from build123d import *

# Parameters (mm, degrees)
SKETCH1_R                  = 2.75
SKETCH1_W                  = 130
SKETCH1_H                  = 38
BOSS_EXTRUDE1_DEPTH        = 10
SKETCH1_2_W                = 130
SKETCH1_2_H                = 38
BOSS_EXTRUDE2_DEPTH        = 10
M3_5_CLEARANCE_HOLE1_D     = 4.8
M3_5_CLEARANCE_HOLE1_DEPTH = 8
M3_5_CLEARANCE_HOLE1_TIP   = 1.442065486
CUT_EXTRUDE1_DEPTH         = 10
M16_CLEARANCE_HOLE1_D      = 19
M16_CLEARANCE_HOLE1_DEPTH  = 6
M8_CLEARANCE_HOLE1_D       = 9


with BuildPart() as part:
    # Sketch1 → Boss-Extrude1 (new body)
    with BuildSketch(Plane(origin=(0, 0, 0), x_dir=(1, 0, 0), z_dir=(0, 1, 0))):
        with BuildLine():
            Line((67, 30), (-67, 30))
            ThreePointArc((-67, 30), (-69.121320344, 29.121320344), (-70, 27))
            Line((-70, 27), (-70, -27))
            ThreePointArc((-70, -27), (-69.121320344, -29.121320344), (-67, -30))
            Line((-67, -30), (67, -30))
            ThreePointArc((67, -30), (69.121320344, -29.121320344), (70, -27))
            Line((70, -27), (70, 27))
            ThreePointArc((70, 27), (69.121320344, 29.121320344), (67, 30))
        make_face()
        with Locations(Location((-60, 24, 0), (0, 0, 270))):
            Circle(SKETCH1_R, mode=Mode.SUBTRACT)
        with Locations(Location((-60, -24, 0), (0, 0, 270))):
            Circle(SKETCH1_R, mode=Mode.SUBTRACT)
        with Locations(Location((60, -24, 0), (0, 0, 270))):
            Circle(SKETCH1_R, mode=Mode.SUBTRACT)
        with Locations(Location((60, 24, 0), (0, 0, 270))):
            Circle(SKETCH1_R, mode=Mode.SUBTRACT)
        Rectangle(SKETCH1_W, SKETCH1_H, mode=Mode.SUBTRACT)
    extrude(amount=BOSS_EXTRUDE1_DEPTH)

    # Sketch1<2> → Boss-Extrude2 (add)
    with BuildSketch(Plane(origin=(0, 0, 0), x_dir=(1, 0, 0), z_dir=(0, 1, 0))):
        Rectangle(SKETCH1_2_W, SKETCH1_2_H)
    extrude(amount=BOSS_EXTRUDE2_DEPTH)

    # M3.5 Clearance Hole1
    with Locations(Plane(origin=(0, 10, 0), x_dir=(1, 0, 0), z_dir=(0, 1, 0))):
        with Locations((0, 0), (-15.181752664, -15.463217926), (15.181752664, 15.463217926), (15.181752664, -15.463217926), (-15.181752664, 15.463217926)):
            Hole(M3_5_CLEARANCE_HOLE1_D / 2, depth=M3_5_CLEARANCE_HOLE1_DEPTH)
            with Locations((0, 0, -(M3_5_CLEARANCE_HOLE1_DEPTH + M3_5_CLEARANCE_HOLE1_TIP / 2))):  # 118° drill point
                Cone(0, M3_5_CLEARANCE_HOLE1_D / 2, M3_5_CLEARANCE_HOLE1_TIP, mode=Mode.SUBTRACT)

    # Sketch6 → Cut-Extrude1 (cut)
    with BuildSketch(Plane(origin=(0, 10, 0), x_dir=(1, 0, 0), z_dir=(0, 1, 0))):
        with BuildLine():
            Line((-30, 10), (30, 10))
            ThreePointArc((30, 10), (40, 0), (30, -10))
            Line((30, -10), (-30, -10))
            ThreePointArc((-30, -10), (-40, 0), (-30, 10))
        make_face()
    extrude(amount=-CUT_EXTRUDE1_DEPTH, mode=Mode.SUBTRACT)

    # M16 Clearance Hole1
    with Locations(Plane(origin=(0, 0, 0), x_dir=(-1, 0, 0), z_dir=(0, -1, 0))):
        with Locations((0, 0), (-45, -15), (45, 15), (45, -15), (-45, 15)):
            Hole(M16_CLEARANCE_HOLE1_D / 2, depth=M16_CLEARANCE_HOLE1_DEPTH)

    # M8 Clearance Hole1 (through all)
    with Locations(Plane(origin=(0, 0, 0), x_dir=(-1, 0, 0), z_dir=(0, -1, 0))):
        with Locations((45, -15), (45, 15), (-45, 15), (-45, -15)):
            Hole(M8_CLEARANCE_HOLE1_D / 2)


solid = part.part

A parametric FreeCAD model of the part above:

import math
import FreeCAD as App
import Part
import Sketcher
from FreeCAD import Vector
Q = App.Units.Quantity

doc = App.newDocument("Part")
params = doc.addObject("Spreadsheet::Sheet", "Params")
for row, (alias, value) in enumerate([
    ("sketch1_radius", "3 mm"),
    ("sketch1_diameter", "5.5 mm"),
    ("sketch1_width", "134 mm"),
    ("sketch1_width2", "130 mm"),
    ("sketch1_height", "54 mm"),
    ("pad1_length", "10 mm"),
    ("sketch2_width", "130 mm"),
    ("sketch2_height", "38 mm"),
    ("pad2_length", "10 mm"),
    ("sketch3_diameter", "4.8 mm"),
    ("hole_diameter", "4.8 mm"),
    ("hole_depth", "8 mm"),
    ("sketch4_radius", "10 mm"),
    ("sketch4_width", "60 mm"),
    ("pocket1_length", "10 mm"),
    ("sketch5_diameter", "19 mm"),
    ("hole2_diameter", "19 mm"),
    ("hole2_depth", "6 mm"),
    ("sketch6_diameter", "9 mm"),
    ("hole3_diameter", "9 mm"),
], start=1):
    params.set(f"A{row}", alias)
    params.set(f"B{row}", "=" + value)
    params.setAlias(f"B{row}", alias)

body = doc.addObject("PartDesign::Body", "Body")

# Sketch on XZ plane
sketch1 = body.newObject("Sketcher::SketchObject", "Sketch")
sketch1.AttachmentSupport = (doc.getObject("XZ_Plane"), [""])
sketch1.MapMode = "FlatFace"
sketch1.addGeometry(Part.LineSegment(Vector(67, -30, 0), Vector(-67, -30, 0)), False)
sketch1.addGeometry(Part.ArcOfCircle(Part.Circle(Vector(-67, -27, 0), Vector(0, 0, 1), 3), math.radians(180), math.radians(270)), False)
sketch1.addGeometry(Part.LineSegment(Vector(-70, -27, 0), Vector(-70, 27, 0)), False)
sketch1.addGeometry(Part.ArcOfCircle(Part.Circle(Vector(-67, 27, 0), Vector(0, 0, 1), 3), math.radians(90), math.radians(180)), False)
sketch1.addGeometry(Part.LineSegment(Vector(-67, 30, 0), Vector(67, 30, 0)), False)
sketch1.addGeometry(Part.ArcOfCircle(Part.Circle(Vector(67, 27, 0), Vector(0, 0, 1), 3), math.radians(0), math.radians(90)), False)
sketch1.addGeometry(Part.LineSegment(Vector(70, 27, 0), Vector(70, -27, 0)), False)
sketch1.addGeometry(Part.ArcOfCircle(Part.Circle(Vector(67, -27, 0), Vector(0, 0, 1), 3), math.radians(-90), math.radians(0)), False)
sketch1.addGeometry(Part.Circle(Vector(-60, 24, 0), Vector(0, 0, 1), 2.75), False)
sketch1.addGeometry(Part.Circle(Vector(60, 24, 0), Vector(0, 0, 1), 2.75), False)
sketch1.addGeometry(Part.LineSegment(Vector(65, 19, 0), Vector(-65, 19, 0)), False)
sketch1.addGeometry(Part.LineSegment(Vector(-65, 19, 0), Vector(-65, -19, 0)), False)
sketch1.addGeometry(Part.LineSegment(Vector(-65, -19, 0), Vector(65, -19, 0)), False)
sketch1.addGeometry(Part.LineSegment(Vector(65, -19, 0), Vector(65, 19, 0)), False)
sketch1.addGeometry(Part.Circle(Vector(-60, -24, 0), Vector(0, 0, 1), 2.75), False)
sketch1.addGeometry(Part.Circle(Vector(60, -24, 0), Vector(0, 0, 1), 2.75), False)
sketch1.addConstraint(Sketcher.Constraint("Tangent", 0, 2, 1, 2))
sketch1.addConstraint(Sketcher.Constraint("Tangent", 1, 1, 2, 1))
sketch1.addConstraint(Sketcher.Constraint("Tangent", 2, 2, 3, 2))
sketch1.addConstraint(Sketcher.Constraint("Tangent", 3, 1, 4, 1))
sketch1.addConstraint(Sketcher.Constraint("Tangent", 4, 2, 5, 2))
sketch1.addConstraint(Sketcher.Constraint("Tangent", 5, 1, 6, 1))
sketch1.addConstraint(Sketcher.Constraint("Tangent", 6, 2, 7, 2))
sketch1.addConstraint(Sketcher.Constraint("Tangent", 7, 1, 0, 1))
sketch1.addConstraint(Sketcher.Constraint("Coincident", 10, 2, 11, 1))
sketch1.addConstraint(Sketcher.Constraint("Coincident", 11, 2, 12, 1))
sketch1.addConstraint(Sketcher.Constraint("Coincident", 12, 2, 13, 1))
sketch1.addConstraint(Sketcher.Constraint("Coincident", 13, 2, 10, 1))
sketch1.addConstraint(Sketcher.Constraint("Horizontal", 0))
sketch1.addConstraint(Sketcher.Constraint("Vertical", 2))
sketch1.addConstraint(Sketcher.Constraint("Horizontal", 4))
sketch1.addConstraint(Sketcher.Constraint("Vertical", 6))
sketch1.addConstraint(Sketcher.Constraint("Horizontal", 10))
sketch1.addConstraint(Sketcher.Constraint("Vertical", 11))
sketch1.addConstraint(Sketcher.Constraint("Horizontal", 12))
sketch1.addConstraint(Sketcher.Constraint("Vertical", 13))
sketch1.addConstraint(Sketcher.Constraint("Equal", 1, 3))
sketch1.addConstraint(Sketcher.Constraint("Equal", 3, 5))
sketch1.addConstraint(Sketcher.Constraint("Equal", 5, 7))
sketch1.addConstraint(Sketcher.Constraint("Equal", 8, 9))
sketch1.addConstraint(Sketcher.Constraint("Equal", 9, 14))
sketch1.addConstraint(Sketcher.Constraint("Equal", 14, 15))
sketch1.addConstraint(Sketcher.Constraint("Symmetric", 1, 3, 5, 3, -1, 1))
sketch1.addConstraint(Sketcher.Constraint("Symmetric", 9, 3, 14, 3, -1, 1))
sketch1.addConstraint(Sketcher.Constraint("Symmetric", 8, 3, 15, 3, -1, 1))
sketch1.addConstraint(Sketcher.Constraint("Symmetric", 10, 2, 12, 2, -1, 1))
sketch1.addConstraint(Sketcher.Constraint("Symmetric", 8, 3, 9, 3, -2))
sketch1.addConstraint(Sketcher.Constraint("Radius", 1, Q("3 mm")))
sketch1.addConstraint(Sketcher.Constraint("Diameter", 8, Q("5.5 mm")))
sketch1.addConstraint(Sketcher.Constraint("DistanceX", 0, 2, 0, 1, Q("134 mm")))
sketch1.addConstraint(Sketcher.Constraint("DistanceX", 10, 2, 10, 1, Q("130 mm")))
sketch1.addConstraint(Sketcher.Constraint("DistanceY", 2, 1, 2, 2, Q("54 mm")))
sketch1.addConstraint(Sketcher.Constraint("DistanceY", 11, 2, 11, 1, Q("38 mm")))
sketch1.addConstraint(Sketcher.Constraint("DistanceX", 8, 3, -1, 1, Q("60 mm")))
sketch1.addConstraint(Sketcher.Constraint("DistanceY", -1, 1, 8, 3, Q("24 mm")))
sketch1.setExpression("Constraints[31]", "Params.sketch1_radius")
sketch1.setExpression("Constraints[32]", "Params.sketch1_diameter")
sketch1.setExpression("Constraints[33]", "Params.sketch1_width")
sketch1.setExpression("Constraints[34]", "Params.sketch1_width2")
sketch1.setExpression("Constraints[35]", "Params.sketch1_height")
pad1 = body.newObject("PartDesign::Pad", "Pad")
pad1.Profile = sketch1
pad1.setExpression("Length", "Params.pad1_length")
pad1.Reversed = True

# Sketch on XZ plane
sketch2 = body.newObject("Sketcher::SketchObject", "Sketch001")
sketch2.AttachmentSupport = (doc.getObject("XZ_Plane"), [""])
sketch2.MapMode = "FlatFace"
sketch2.addGeometry(Part.LineSegment(Vector(-65, -19, 0), Vector(-65, 19, 0)), False)
sketch2.addGeometry(Part.LineSegment(Vector(-65, 19, 0), Vector(65, 19, 0)), False)
sketch2.addGeometry(Part.LineSegment(Vector(65, 19, 0), Vector(65, -19, 0)), False)
sketch2.addGeometry(Part.LineSegment(Vector(65, -19, 0), Vector(-65, -19, 0)), False)
sketch2.addConstraint(Sketcher.Constraint("Coincident", 0, 2, 1, 1))
sketch2.addConstraint(Sketcher.Constraint("Coincident", 1, 2, 2, 1))
sketch2.addConstraint(Sketcher.Constraint("Coincident", 2, 2, 3, 1))
sketch2.addConstraint(Sketcher.Constraint("Coincident", 3, 2, 0, 1))
sketch2.addConstraint(Sketcher.Constraint("Vertical", 0))
sketch2.addConstraint(Sketcher.Constraint("Horizontal", 1))
sketch2.addConstraint(Sketcher.Constraint("Vertical", 2))
sketch2.addConstraint(Sketcher.Constraint("Horizontal", 3))
sketch2.addConstraint(Sketcher.Constraint("Symmetric", 0, 2, 2, 2, -1, 1))
sketch2.addConstraint(Sketcher.Constraint("DistanceX", 1, 1, 1, 2, Q("130 mm")))
sketch2.addConstraint(Sketcher.Constraint("DistanceY", 0, 1, 0, 2, Q("38 mm")))
sketch2.setExpression("Constraints[9]", "Params.sketch2_width")
sketch2.setExpression("Constraints[10]", "Params.sketch2_height")
pad2 = body.newObject("PartDesign::Pad", "Pad001")
pad2.Profile = sketch2
pad2.setExpression("Length", "Params.pad2_length")
pad2.Reversed = True

# Sketch on XZ plane
sketch3 = body.newObject("Sketcher::SketchObject", "Sketch002")
sketch3.AttachmentSupport = (doc.getObject("XZ_Plane"), [""])
sketch3.MapMode = "FlatFace"
sketch3.AttachmentOffset = App.Placement(Vector(0, 0, -10), App.Rotation())
sketch3.addGeometry(Part.Circle(Vector(0, 0, 0), Vector(0, 0, 1), 2.4), False)
sketch3.addGeometry(Part.Circle(Vector(-15.181753, 15.463218, 0), Vector(0, 0, 1), 2.4), False)
sketch3.addGeometry(Part.Circle(Vector(15.181753, -15.463218, 0), Vector(0, 0, 1), 2.4), False)
sketch3.addGeometry(Part.Circle(Vector(15.181753, 15.463218, 0), Vector(0, 0, 1), 2.4), False)
sketch3.addGeometry(Part.Circle(Vector(-15.181753, -15.463218, 0), Vector(0, 0, 1), 2.4), False)
sketch3.addConstraint(Sketcher.Constraint("Coincident", 0, 3, -1, 1))
sketch3.addConstraint(Sketcher.Constraint("Equal", 0, 1))
sketch3.addConstraint(Sketcher.Constraint("Equal", 1, 2))
sketch3.addConstraint(Sketcher.Constraint("Equal", 2, 3))
sketch3.addConstraint(Sketcher.Constraint("Equal", 3, 4))
sketch3.addConstraint(Sketcher.Constraint("Symmetric", 1, 3, 2, 3, -1, 1))
sketch3.addConstraint(Sketcher.Constraint("Symmetric", 3, 3, 4, 3, -1, 1))
sketch3.addConstraint(Sketcher.Constraint("Symmetric", 1, 3, 3, 3, -2))
sketch3.addConstraint(Sketcher.Constraint("Diameter", 0, Q("4.8 mm")))
sketch3.addConstraint(Sketcher.Constraint("DistanceX", 1, 3, -1, 1, Q("15.181753 mm")))
sketch3.addConstraint(Sketcher.Constraint("DistanceY", -1, 1, 1, 3, Q("15.463218 mm")))
sketch3.setExpression("Constraints[8]", "Params.sketch3_diameter")
doc.recompute()
hole = body.newObject("PartDesign::Hole", "Hole")
hole.Profile = sketch3
hole.ThreadType = "None"
hole.setExpression("Diameter", "Params.hole_diameter")
hole.DepthType = "Dimension"
hole.setExpression("Depth", "Params.hole_depth")
hole.DrillPoint = "Angled"
hole.DrillPointAngle = 118
hole.Reversed = True

# Sketch on XZ plane
sketch4 = body.newObject("Sketcher::SketchObject", "Sketch003")
sketch4.AttachmentSupport = (doc.getObject("XZ_Plane"), [""])
sketch4.MapMode = "FlatFace"
sketch4.AttachmentOffset = App.Placement(Vector(0, 0, -10), App.Rotation())
sketch4.addGeometry(Part.LineSegment(Vector(30, -10, 0), Vector(-30, -10, 0)), False)
sketch4.addGeometry(Part.ArcOfCircle(Part.Circle(Vector(-30, 0, 0), Vector(0, 0, 1), 10), math.radians(90), math.radians(270)), False)
sketch4.addGeometry(Part.LineSegment(Vector(-30, 10, 0), Vector(30, 10, 0)), False)
sketch4.addGeometry(Part.ArcOfCircle(Part.Circle(Vector(30, 0, 0), Vector(0, 0, 1), 10), math.radians(-90), math.radians(90)), False)
sketch4.addConstraint(Sketcher.Constraint("Tangent", 0, 2, 1, 2))
sketch4.addConstraint(Sketcher.Constraint("Tangent", 1, 1, 2, 1))
sketch4.addConstraint(Sketcher.Constraint("Tangent", 2, 2, 3, 2))
sketch4.addConstraint(Sketcher.Constraint("Tangent", 3, 1, 0, 1))
sketch4.addConstraint(Sketcher.Constraint("Horizontal", 0))
sketch4.addConstraint(Sketcher.Constraint("Horizontal", 2))
sketch4.addConstraint(Sketcher.Constraint("Symmetric", 1, 3, 3, 3, -1, 1))
sketch4.addConstraint(Sketcher.Constraint("Radius", 1, Q("10 mm")))
sketch4.addConstraint(Sketcher.Constraint("DistanceX", 0, 2, 0, 1, Q("60 mm")))
sketch4.setExpression("Constraints[7]", "Params.sketch4_radius")
sketch4.setExpression("Constraints[8]", "Params.sketch4_width")
pocket1 = body.newObject("PartDesign::Pocket", "Pocket")
pocket1.Profile = sketch4
pocket1.setExpression("Length", "Params.pocket1_length")
pocket1.Reversed = True

# Sketch on XZ plane
sketch5 = body.newObject("Sketcher::SketchObject", "Sketch004")
sketch5.AttachmentSupport = (doc.getObject("XZ_Plane"), [""])
sketch5.MapMode = "FlatFace"
sketch5.addGeometry(Part.Circle(Vector(0, 0, 0), Vector(0, 0, 1), 9.5), False)
sketch5.addGeometry(Part.Circle(Vector(45, 15, 0), Vector(0, 0, 1), 9.5), False)
sketch5.addGeometry(Part.Circle(Vector(-45, -15, 0), Vector(0, 0, 1), 9.5), False)
sketch5.addGeometry(Part.Circle(Vector(-45, 15, 0), Vector(0, 0, 1), 9.5), False)
sketch5.addGeometry(Part.Circle(Vector(45, -15, 0), Vector(0, 0, 1), 9.5), False)
sketch5.addConstraint(Sketcher.Constraint("Coincident", 0, 3, -1, 1))
sketch5.addConstraint(Sketcher.Constraint("Equal", 0, 1))
sketch5.addConstraint(Sketcher.Constraint("Equal", 1, 2))
sketch5.addConstraint(Sketcher.Constraint("Equal", 2, 3))
sketch5.addConstraint(Sketcher.Constraint("Equal", 3, 4))
sketch5.addConstraint(Sketcher.Constraint("Symmetric", 1, 3, 2, 3, -1, 1))
sketch5.addConstraint(Sketcher.Constraint("Symmetric", 3, 3, 4, 3, -1, 1))
sketch5.addConstraint(Sketcher.Constraint("Symmetric", 1, 3, 3, 3, -2))
sketch5.addConstraint(Sketcher.Constraint("Diameter", 0, Q("19 mm")))
sketch5.addConstraint(Sketcher.Constraint("DistanceX", -1, 1, 1, 3, Q("45 mm")))
sketch5.addConstraint(Sketcher.Constraint("DistanceY", -1, 1, 1, 3, Q("15 mm")))
sketch5.setExpression("Constraints[8]", "Params.sketch5_diameter")
doc.recompute()
hole2 = body.newObject("PartDesign::Hole", "Hole001")
hole2.Profile = sketch5
hole2.ThreadType = "None"
hole2.setExpression("Diameter", "Params.hole2_diameter")
hole2.DepthType = "Dimension"
hole2.setExpression("Depth", "Params.hole2_depth")
hole2.DrillPoint = "Flat"

# Sketch on XZ plane
sketch6 = body.newObject("Sketcher::SketchObject", "Sketch005")
sketch6.AttachmentSupport = (doc.getObject("XZ_Plane"), [""])
sketch6.MapMode = "FlatFace"
sketch6.addGeometry(Part.Circle(Vector(-45, 15, 0), Vector(0, 0, 1), 4.5), False)
sketch6.addGeometry(Part.Circle(Vector(-45, -15, 0), Vector(0, 0, 1), 4.5), False)
sketch6.addGeometry(Part.Circle(Vector(45, -15, 0), Vector(0, 0, 1), 4.5), False)
sketch6.addGeometry(Part.Circle(Vector(45, 15, 0), Vector(0, 0, 1), 4.5), False)
sketch6.addConstraint(Sketcher.Constraint("Equal", 0, 1))
sketch6.addConstraint(Sketcher.Constraint("Equal", 1, 2))
sketch6.addConstraint(Sketcher.Constraint("Equal", 2, 3))
sketch6.addConstraint(Sketcher.Constraint("Symmetric", 0, 3, 2, 3, -1, 1))
sketch6.addConstraint(Sketcher.Constraint("Symmetric", 1, 3, 3, 3, -1, 1))
sketch6.addConstraint(Sketcher.Constraint("Symmetric", 1, 3, 2, 3, -2))
sketch6.addConstraint(Sketcher.Constraint("Diameter", 0, Q("9 mm")))
sketch6.addConstraint(Sketcher.Constraint("DistanceX", 0, 3, -1, 1, Q("45 mm")))
sketch6.addConstraint(Sketcher.Constraint("DistanceY", -1, 1, 0, 3, Q("15 mm")))
sketch6.setExpression("Constraints[6]", "Params.sketch6_diameter")
doc.recompute()
hole3 = body.newObject("PartDesign::Hole", "Hole002")
hole3.Profile = sketch6
hole3.ThreadType = "None"
hole3.setExpression("Diameter", "Params.hole3_diameter")
hole3.DepthType = "ThroughAll"

doc.recompute()
